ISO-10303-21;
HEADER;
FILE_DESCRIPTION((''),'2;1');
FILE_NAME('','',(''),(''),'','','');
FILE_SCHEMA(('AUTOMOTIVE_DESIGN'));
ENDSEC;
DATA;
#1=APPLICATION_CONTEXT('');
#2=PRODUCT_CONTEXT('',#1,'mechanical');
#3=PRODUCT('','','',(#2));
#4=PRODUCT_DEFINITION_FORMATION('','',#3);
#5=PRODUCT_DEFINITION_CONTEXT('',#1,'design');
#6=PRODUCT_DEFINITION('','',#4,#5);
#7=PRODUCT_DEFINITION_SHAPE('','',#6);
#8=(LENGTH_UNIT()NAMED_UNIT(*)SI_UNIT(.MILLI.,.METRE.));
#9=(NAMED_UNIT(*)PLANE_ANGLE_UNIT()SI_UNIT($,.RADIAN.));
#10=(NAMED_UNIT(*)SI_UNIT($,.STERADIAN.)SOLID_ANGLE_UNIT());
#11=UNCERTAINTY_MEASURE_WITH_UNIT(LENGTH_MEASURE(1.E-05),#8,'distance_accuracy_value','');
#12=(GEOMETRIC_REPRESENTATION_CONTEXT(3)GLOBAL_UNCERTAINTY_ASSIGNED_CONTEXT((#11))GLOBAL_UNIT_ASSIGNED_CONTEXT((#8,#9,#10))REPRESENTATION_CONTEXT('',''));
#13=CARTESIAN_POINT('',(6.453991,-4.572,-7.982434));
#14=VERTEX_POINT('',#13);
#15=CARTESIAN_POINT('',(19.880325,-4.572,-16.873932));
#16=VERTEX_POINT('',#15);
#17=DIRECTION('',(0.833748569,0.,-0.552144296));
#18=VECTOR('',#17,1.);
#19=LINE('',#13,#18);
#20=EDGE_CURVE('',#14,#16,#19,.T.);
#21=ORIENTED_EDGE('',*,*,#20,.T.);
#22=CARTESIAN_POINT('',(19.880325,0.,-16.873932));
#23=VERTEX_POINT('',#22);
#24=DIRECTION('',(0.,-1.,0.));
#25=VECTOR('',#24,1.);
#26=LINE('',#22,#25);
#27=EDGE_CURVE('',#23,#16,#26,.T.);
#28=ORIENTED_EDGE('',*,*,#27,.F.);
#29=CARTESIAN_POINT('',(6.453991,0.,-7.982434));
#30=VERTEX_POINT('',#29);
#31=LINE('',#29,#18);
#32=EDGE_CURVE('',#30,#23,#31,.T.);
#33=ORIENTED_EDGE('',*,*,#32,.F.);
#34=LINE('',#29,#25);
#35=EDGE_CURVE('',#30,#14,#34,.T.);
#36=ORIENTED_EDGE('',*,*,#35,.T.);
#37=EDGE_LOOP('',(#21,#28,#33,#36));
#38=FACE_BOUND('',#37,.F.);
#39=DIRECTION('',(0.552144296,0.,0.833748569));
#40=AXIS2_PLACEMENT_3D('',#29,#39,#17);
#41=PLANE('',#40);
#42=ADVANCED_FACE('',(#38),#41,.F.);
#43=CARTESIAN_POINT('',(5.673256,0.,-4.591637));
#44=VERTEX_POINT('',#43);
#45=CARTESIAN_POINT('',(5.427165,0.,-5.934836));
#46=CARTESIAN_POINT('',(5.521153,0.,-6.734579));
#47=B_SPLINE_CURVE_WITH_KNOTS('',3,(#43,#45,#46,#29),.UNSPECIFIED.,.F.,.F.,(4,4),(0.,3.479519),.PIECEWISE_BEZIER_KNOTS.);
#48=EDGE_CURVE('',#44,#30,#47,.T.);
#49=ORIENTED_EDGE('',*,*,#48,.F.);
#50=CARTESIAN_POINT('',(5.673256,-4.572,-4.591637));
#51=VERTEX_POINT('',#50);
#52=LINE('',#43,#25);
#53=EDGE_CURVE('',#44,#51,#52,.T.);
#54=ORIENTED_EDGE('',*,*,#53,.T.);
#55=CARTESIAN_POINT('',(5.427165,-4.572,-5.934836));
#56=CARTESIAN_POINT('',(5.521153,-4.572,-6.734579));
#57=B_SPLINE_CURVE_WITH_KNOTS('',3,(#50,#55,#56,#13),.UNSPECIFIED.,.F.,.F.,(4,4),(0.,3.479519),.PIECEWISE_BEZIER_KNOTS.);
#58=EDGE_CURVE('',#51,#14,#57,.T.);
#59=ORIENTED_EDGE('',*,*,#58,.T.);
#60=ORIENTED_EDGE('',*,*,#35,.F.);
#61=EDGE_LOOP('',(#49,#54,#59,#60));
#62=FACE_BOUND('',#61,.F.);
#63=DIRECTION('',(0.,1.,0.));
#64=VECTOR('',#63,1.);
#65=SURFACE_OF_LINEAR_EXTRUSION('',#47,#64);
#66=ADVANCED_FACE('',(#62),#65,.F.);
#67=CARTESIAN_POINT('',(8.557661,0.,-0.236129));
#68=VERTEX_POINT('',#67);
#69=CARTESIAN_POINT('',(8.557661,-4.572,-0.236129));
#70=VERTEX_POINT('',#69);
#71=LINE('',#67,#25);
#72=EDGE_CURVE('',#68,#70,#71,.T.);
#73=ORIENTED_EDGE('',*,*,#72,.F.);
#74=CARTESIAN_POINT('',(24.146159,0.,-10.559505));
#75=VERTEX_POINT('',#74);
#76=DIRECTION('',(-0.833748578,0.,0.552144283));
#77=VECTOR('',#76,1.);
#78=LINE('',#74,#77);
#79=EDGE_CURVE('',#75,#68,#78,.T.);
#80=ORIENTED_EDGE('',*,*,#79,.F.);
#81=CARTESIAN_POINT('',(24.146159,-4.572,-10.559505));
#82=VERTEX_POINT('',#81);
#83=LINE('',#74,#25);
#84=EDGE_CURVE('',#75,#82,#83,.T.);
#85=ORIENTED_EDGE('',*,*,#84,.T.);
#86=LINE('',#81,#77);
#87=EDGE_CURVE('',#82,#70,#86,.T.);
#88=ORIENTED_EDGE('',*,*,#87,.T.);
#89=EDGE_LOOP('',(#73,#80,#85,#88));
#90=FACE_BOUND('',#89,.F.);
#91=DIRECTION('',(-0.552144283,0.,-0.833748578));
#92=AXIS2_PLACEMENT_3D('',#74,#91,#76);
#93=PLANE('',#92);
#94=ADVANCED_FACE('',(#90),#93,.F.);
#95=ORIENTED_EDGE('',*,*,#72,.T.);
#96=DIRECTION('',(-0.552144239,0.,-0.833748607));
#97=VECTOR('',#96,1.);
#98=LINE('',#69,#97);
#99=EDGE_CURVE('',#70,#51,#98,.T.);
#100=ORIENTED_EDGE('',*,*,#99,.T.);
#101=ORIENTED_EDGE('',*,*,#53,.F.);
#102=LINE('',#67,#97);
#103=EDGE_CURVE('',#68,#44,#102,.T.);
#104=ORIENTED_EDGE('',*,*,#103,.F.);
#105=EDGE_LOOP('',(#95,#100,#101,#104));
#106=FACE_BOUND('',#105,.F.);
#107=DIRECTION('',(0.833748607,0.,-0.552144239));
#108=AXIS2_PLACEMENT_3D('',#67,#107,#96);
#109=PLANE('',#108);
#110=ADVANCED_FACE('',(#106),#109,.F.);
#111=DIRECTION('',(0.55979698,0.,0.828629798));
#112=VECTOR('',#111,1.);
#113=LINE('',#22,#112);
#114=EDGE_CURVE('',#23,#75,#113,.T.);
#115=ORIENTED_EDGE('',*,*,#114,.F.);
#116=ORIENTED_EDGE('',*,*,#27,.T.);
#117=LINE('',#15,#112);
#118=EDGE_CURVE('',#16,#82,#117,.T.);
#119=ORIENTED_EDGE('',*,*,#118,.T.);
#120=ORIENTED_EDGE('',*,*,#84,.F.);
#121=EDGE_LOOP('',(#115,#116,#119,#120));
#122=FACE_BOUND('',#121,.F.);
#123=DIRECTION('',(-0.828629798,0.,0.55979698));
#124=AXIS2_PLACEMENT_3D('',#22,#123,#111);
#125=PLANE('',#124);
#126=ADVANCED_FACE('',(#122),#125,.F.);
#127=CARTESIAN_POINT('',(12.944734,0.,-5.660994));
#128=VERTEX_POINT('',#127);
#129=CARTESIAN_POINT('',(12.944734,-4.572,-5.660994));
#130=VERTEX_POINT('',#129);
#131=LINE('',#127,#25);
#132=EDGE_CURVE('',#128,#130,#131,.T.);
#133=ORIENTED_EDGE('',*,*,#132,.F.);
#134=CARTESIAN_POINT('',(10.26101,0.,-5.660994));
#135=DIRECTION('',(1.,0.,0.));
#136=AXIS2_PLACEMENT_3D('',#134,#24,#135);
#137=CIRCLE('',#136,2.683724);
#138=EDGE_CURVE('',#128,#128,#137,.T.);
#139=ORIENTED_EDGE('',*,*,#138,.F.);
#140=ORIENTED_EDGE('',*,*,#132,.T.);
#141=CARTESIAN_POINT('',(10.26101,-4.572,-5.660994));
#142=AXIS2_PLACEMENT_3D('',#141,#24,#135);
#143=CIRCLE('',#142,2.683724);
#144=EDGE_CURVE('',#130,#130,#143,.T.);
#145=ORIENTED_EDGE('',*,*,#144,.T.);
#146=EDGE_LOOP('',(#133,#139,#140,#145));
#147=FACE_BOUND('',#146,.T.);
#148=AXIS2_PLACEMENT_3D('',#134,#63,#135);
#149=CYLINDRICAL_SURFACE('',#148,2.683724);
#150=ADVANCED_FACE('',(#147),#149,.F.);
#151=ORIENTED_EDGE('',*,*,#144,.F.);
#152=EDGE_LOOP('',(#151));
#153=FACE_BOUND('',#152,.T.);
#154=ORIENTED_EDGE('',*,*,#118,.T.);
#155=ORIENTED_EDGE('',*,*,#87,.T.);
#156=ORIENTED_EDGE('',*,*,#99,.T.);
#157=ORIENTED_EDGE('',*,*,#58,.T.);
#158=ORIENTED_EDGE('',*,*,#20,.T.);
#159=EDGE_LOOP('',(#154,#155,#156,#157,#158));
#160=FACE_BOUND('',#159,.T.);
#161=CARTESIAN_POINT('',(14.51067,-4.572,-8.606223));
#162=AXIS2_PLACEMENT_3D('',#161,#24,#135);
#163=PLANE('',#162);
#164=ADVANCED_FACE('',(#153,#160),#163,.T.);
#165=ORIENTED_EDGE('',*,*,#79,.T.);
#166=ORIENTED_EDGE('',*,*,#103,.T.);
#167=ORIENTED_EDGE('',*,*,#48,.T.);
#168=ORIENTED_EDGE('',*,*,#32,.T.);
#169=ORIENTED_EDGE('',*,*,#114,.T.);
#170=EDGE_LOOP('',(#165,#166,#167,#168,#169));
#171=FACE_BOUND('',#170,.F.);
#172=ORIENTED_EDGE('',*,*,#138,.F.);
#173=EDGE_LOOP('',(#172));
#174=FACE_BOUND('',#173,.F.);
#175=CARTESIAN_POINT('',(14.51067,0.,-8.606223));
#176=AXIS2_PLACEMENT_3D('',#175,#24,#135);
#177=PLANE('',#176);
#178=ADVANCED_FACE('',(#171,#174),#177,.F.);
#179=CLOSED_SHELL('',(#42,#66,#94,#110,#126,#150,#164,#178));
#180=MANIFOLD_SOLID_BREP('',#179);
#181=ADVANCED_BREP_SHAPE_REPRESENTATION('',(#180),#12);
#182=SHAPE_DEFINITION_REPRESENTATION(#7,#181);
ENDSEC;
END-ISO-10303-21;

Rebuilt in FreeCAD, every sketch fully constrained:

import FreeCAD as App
import Part
import Sketcher
from FreeCAD import Vector

doc = App.newDocument("Part")
params = doc.addObject("Spreadsheet::Sheet", "Params")
for row, (alias, value) in enumerate([
    ("pad1_length", "0.18 in"),
], start=1):
    params.set(f"A{row}", alias)
    params.set(f"B{row}", "=" + value)
    params.setAlias(f"B{row}", alias)

body = doc.addObject("PartDesign::Body", "Body")

sketch1 = doc.addObject("Sketcher::SketchObject", "Sketch")
body.addObject(sketch1)
sketch1.AttachmentSupport = (doc.XZ_Plane, [""])
sketch1.MapMode = "FlatFace"
sketch1.addGeometry([
    Part.LineSegment(Vector(19.880325, -16.873932, 0), Vector(24.146159, -10.559505, 0)),
    Part.LineSegment(Vector(24.146159, -10.559505, 0), Vector(8.557661, -0.236129, 0)),
    Part.LineSegment(Vector(8.557661, -0.236129, 0), Vector(5.673256, -4.591637, 0)),
    Part.BSplineCurve([Vector(5.673256, -4.591637, 0), Vector(5.427165, -5.934836, 0), Vector(5.521153, -6.734579, 0), Vector(6.453991, -7.982434, 0)], [4, 4], [0, 3.479519], False, 3, [1, 1, 1, 1], False),
    Part.LineSegment(Vector(6.453991, -7.982434, 0), Vector(19.880325, -16.873932, 0)),
    Part.Circle(Vector(10.26101, -5.660994, 0), Vector(0, 0, 1), 2.683724),
], False)
sketch1.addConstraint([
    Sketcher.Constraint("Block", 3),
    Sketcher.Constraint("Coincident", 0, 2, 1, 1),
    Sketcher.Constraint("Coincident", 1, 2, 2, 1),
    Sketcher.Constraint("Coincident", 2, 2, 3, 1),
    Sketcher.Constraint("Coincident", 3, 2, 4, 1),
    Sketcher.Constraint("Coincident", 4, 2, 0, 1),
    Sketcher.Constraint("Diameter", 5, 5.367448),
    Sketcher.Constraint("DistanceX", 1, 2, 0, 2, 15.588498),
    Sketcher.Constraint("Distance", 1, 18.696881),
    Sketcher.Constraint("DistanceX", -1, 1, 5, 3, 10.26101),
    Sketcher.Constraint("DistanceX", -1, 1, 0, 2, 24.146159),
    Sketcher.Constraint("DistanceY", 1, 2, -1, 1, 0.236129),
    Sketcher.Constraint("DistanceY", 4, 2, -1, 1, 16.873932),
    Sketcher.Constraint("DistanceY", 0, 2, 5, 3, 4.898511),
    Sketcher.Constraint("DistanceX", 2, 2, 4, 2, 14.207069),
])
pad1 = doc.addObject("PartDesign::Pad", "Pad")
body.addObject(pad1)
pad1.Profile = sketch1
pad1.setExpression("Length", "Params.pad1_length")

doc.recompute()
